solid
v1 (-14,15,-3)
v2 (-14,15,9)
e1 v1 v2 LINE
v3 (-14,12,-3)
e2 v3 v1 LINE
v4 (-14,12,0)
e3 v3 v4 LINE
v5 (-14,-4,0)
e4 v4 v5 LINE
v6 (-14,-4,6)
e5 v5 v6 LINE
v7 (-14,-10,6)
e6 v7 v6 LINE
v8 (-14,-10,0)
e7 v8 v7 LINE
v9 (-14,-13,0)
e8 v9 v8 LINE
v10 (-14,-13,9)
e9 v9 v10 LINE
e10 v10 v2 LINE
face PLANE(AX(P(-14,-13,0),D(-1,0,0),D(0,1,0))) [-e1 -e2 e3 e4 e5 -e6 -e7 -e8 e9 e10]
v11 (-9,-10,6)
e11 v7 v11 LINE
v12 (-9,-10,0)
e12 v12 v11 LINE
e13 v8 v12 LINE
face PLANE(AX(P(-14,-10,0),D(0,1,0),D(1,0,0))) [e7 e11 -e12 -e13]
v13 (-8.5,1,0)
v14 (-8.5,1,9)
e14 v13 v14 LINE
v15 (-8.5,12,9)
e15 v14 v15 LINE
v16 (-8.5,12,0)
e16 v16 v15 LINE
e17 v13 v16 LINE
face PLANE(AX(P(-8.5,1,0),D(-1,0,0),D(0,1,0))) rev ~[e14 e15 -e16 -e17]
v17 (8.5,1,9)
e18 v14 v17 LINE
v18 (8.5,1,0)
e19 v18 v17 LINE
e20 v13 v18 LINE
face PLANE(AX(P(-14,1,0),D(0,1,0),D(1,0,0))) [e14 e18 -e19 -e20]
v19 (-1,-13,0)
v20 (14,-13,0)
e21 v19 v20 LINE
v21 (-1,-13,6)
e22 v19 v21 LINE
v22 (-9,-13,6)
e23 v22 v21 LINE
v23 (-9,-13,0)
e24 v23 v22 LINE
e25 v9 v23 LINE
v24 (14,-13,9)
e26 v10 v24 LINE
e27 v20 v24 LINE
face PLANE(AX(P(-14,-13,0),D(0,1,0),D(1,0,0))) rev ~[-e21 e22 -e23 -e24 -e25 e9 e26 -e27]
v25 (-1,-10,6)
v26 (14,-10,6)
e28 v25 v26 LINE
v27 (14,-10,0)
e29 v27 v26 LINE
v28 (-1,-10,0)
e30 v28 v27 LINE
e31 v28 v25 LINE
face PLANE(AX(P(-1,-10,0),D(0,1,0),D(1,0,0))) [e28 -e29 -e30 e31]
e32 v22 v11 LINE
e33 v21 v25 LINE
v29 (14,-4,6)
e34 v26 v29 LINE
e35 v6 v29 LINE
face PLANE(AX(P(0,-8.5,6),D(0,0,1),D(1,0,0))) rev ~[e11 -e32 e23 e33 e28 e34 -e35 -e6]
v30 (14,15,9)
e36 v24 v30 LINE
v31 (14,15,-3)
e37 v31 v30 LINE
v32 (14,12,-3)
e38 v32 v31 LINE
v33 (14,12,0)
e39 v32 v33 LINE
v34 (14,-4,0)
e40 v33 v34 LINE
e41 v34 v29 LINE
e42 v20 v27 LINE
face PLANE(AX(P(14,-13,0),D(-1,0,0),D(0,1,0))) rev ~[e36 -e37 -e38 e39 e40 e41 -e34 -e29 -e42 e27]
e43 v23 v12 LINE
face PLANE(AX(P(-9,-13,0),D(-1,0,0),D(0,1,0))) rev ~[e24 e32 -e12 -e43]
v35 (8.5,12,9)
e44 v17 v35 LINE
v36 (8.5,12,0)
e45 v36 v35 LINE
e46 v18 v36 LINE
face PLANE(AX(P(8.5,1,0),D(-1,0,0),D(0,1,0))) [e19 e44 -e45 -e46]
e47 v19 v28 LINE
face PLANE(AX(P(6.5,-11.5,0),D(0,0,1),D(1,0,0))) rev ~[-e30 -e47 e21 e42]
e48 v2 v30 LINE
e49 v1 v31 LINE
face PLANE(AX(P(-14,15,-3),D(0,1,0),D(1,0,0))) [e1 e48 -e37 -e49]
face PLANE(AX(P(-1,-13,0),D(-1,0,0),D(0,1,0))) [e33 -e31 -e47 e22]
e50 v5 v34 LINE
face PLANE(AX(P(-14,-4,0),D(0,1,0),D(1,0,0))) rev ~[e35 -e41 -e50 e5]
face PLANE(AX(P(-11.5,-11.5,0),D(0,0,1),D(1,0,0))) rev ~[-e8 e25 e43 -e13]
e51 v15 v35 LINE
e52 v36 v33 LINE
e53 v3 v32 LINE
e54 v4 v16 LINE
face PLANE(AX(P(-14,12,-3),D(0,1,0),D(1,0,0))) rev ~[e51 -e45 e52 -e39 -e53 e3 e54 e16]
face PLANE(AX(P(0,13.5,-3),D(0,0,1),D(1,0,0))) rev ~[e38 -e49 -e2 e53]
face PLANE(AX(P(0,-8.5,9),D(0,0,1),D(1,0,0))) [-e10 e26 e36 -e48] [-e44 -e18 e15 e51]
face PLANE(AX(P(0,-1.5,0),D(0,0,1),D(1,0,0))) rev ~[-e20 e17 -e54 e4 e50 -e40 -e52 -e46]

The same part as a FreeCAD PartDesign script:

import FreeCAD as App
import Part
import Sketcher
from FreeCAD import Vector
Q = App.Units.Quantity


def add_polygon(sketch, points):
    """Adds a closed chain of lines whose ends are joined by coincident constraints."""
    first, n = sketch.GeometryCount, len(points)
    for a, b in zip(points, points[1:] + points[:1]):
        sketch.addGeometry(Part.LineSegment(App.Vector(*a, 0), App.Vector(*b, 0)), False)
    for i in range(n):
        sketch.addConstraint(Sketcher.Constraint("Coincident", first + i, 2, first + (i + 1) % n, 1))

doc = App.newDocument("Part")
body = doc.addObject("PartDesign::Body", "Body")

# Sketch on XY plane
sketch1 = body.newObject("Sketcher::SketchObject", "Sketch")
sketch1.AttachmentSupport = (doc.getObject("XY_Plane"), [""])
sketch1.MapMode = "FlatFace"
add_polygon(sketch1, [(8.5, 12), (8.5, 1), (14, 1), (14, 12)])  # lines 0-3
sketch1.addConstraint([
    Sketcher.Constraint("Vertical", 0),
    Sketcher.Constraint("Horizontal", 1),
    Sketcher.Constraint("Vertical", 2),
    Sketcher.Constraint("Horizontal", 3),
    Sketcher.Constraint("DistanceY", 0, 2, 0, 1, Q("11 mm")),
    Sketcher.Constraint("DistanceX", 1, 1, 1, 2, Q("5.5 mm")),
    Sketcher.Constraint("DistanceY", -1, 1, 0, 2, Q("1 mm")),
    Sketcher.Constraint("DistanceX", -1, 1, 1, 2, Q("14 mm")),
])
pad1 = body.newObject("PartDesign::Pad", "Pad")
pad1.Profile = sketch1
pad1.Length = 9
body2 = doc.addObject("PartDesign::Body", "Body001")

# Sketch on XY plane
sketch2 = body2.newObject("Sketcher::SketchObject", "Sketch001")
sketch2.AttachmentSupport = (doc.getObject("XY_Plane001"), [""])
sketch2.MapMode = "FlatFace"
add_polygon(sketch2, [(-14, 12), (-14, 1), (-8.5, 1), (-8.5, 12)])  # lines 0-3
sketch2.addConstraint([
    Sketcher.Constraint("Vertical", 0),
    Sketcher.Constraint("Horizontal", 1),
    Sketcher.Constraint("Vertical", 2),
    Sketcher.Constraint("Horizontal", 3),
    Sketcher.Constraint("DistanceY", 0, 2, 0, 1, Q("11 mm")),
    Sketcher.Constraint("DistanceX", 1, 1, 1, 2, Q("5.5 mm")),
    Sketcher.Constraint("DistanceX", 0, 2, -1, 1, Q("14 mm")),
    Sketcher.Constraint("DistanceY", -1, 1, 0, 2, Q("1 mm")),
])
pad2 = body2.newObject("PartDesign::Pad", "Pad001")
pad2.Profile = sketch2
pad2.Length = 9
body3 = doc.addObject("PartDesign::Body", "Body002")

# Sketch on XY plane
sketch3 = body3.newObject("Sketcher::SketchObject", "Sketch002")
sketch3.AttachmentSupport = (doc.getObject("XY_Plane002"), [""])
sketch3.MapMode = "FlatFace"
add_polygon(sketch3, [(-14, 1), (-14, -4), (14, -4), (14, 1)])  # lines 0-3
sketch3.addConstraint([
    Sketcher.Constraint("Vertical", 0),
    Sketcher.Constraint("Horizontal", 1),
    Sketcher.Constraint("Vertical", 2),
    Sketcher.Constraint("Horizontal", 3),
    Sketcher.Constraint("DistanceX", 1, 1, 1, 2, Q("28 mm")),
    Sketcher.Constraint("DistanceY", 0, 2, 0, 1, Q("5 mm")),
    Sketcher.Constraint("DistanceX", 0, 2, -1, 1, Q("14 mm")),
    Sketcher.Constraint("DistanceY", 0, 2, -1, 1, Q("4 mm")),
])
pad3 = body3.newObject("PartDesign::Pad", "Pad002")
pad3.Profile = sketch3
pad3.Length = 9
body4 = doc.addObject("PartDesign::Body", "Body003")

# Sketch on XY plane
sketch4 = body4.newObject("Sketcher::SketchObject", "Sketch003")
sketch4.AttachmentSupport = (doc.getObject("XY_Plane003"), [""])
sketch4.MapMode = "FlatFace"
sketch4.AttachmentOffset = App.Placement(Vector(0, 0, 6), App.Rotation())
add_polygon(sketch4, [(-14, -4), (-14, -13), (14, -13), (14, -4)])  # lines 0-3
sketch4.addConstraint([
    Sketcher.Constraint("Vertical", 0),
    Sketcher.Constraint("Horizontal", 1),
    Sketcher.Constraint("Vertical", 2),
    Sketcher.Constraint("Horizontal", 3),
    Sketcher.Constraint("DistanceX", 1, 1, 1, 2, Q("28 mm")),
    Sketcher.Constraint("DistanceY", 0, 2, 0, 1, Q("9 mm")),
    Sketcher.Constraint("DistanceX", 0, 2, -1, 1, Q("14 mm")),
    Sketcher.Constraint("DistanceY", 0, 2, -1, 1, Q("13 mm")),
])
pad4 = body4.newObject("PartDesign::Pad", "Pad003")
pad4.Profile = sketch4
pad4.Length = 3
body5 = doc.addObject("PartDesign::Body", "Body004")

# Sketch on XY plane
sketch5 = body5.newObject("Sketcher::SketchObject", "Sketch004")
sketch5.AttachmentSupport = (doc.getObject("XY_Plane004"), [""])
sketch5.MapMode = "FlatFace"
add_polygon(sketch5, [(-1, -10), (-1, -13), (14, -13), (14, -10)])  # lines 0-3
sketch5.addConstraint([
    Sketcher.Constraint("Vertical", 0),
    Sketcher.Constraint("Horizontal", 1),
    Sketcher.Constraint("Vertical", 2),
    Sketcher.Constraint("Horizontal", 3),
    Sketcher.Constraint("DistanceX", 1, 1, 1, 2, Q("15 mm")),
    Sketcher.Constraint("DistanceY", 0, 2, 0, 1, Q("3 mm")),
    Sketcher.Constraint("DistanceX", 0, 2, -1, 1, Q("1 mm")),
    Sketcher.Constraint("DistanceY", 0, 2, -1, 1, Q("13 mm")),
])
pad5 = body5.newObject("PartDesign::Pad", "Pad004")
pad5.Profile = sketch5
pad5.Length = 6
body6 = doc.addObject("PartDesign::Body", "Body005")

# Sketch on XY plane
sketch6 = body6.newObject("Sketcher::SketchObject", "Sketch005")
sketch6.AttachmentSupport = (doc.getObject("XY_Plane005"), [""])
sketch6.MapMode = "FlatFace"
add_polygon(sketch6, [(-14, -10), (-14, -13), (-9, -13), (-9, -10)])  # lines 0-3
sketch6.addConstraint([
    Sketcher.Constraint("Vertical", 0),
    Sketcher.Constraint("Horizontal", 1),
    Sketcher.Constraint("Vertical", 2),
    Sketcher.Constraint("Horizontal", 3),
    Sketcher.Constraint("DistanceX", 1, 1, 1, 2, Q("5 mm")),
    Sketcher.Constraint("DistanceY", 0, 2, 0, 1, Q("3 mm")),
    Sketcher.Constraint("DistanceX", 0, 2, -1, 1, Q("14 mm")),
    Sketcher.Constraint("DistanceY", 0, 2, -1, 1, Q("13 mm")),
])
pad6 = body6.newObject("PartDesign::Pad", "Pad005")
pad6.Profile = sketch6
pad6.Length = 6
body7 = doc.addObject("PartDesign::Body", "Body006")

# Sketch on XY plane
sketch7 = body7.newObject("Sketcher::SketchObject", "Sketch006")
sketch7.AttachmentSupport = (doc.getObject("XY_Plane006"), [""])
sketch7.MapMode = "FlatFace"
sketch7.AttachmentOffset = App.Placement(Vector(0, 0, -3), App.Rotation())
add_polygon(sketch7, [(-14, 15), (-14, 12), (14, 12), (14, 15)])  # lines 0-3
sketch7.addConstraint([
    Sketcher.Constraint("Vertical", 0),
    Sketcher.Constraint("Horizontal", 1),
    Sketcher.Constraint("Vertical", 2),
    Sketcher.Constraint("Horizontal", 3),
    Sketcher.Constraint("DistanceX", 1, 1, 1, 2, Q("28 mm")),
    Sketcher.Constraint("DistanceY", 0, 2, 0, 1, Q("3 mm")),
    Sketcher.Constraint("DistanceX", 0, 2, -1, 1, Q("14 mm")),
    Sketcher.Constraint("DistanceY", -1, 1, 0, 2, Q("12 mm")),
])
pad7 = body7.newObject("PartDesign::Pad", "Pad006")
pad7.Profile = sketch7
pad7.Length = 12
doc.recompute()

boolean = body7.newObject("PartDesign::Boolean", "Boolean")
boolean.Type = "Fuse"
boolean.addObjects([body])
doc.recompute()

boolean2 = body7.newObject("PartDesign::Boolean", "Boolean001")
boolean2.Type = "Fuse"
boolean2.addObjects([body2])
doc.recompute()

boolean3 = body7.newObject("PartDesign::Boolean", "Boolean002")
boolean3.Type = "Fuse"
boolean3.addObjects([body3])
doc.recompute()

boolean4 = body7.newObject("PartDesign::Boolean", "Boolean003")
boolean4.Type = "Fuse"
boolean4.addObjects([body4])
doc.recompute()

boolean5 = body7.newObject("PartDesign::Boolean", "Boolean004")
boolean5.Type = "Fuse"
boolean5.addObjects([body5])
doc.recompute()

boolean6 = body7.newObject("PartDesign::Boolean", "Boolean005")
boolean6.Type = "Fuse"
boolean6.addObjects([body6])

doc.recompute()
